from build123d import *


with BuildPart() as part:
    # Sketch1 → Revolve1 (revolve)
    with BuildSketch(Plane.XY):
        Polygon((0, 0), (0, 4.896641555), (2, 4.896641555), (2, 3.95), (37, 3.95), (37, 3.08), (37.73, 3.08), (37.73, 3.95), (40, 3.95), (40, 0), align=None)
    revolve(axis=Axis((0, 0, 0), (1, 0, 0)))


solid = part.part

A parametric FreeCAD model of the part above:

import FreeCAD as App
import Part
import Sketcher
from FreeCAD import Vector

doc = App.newDocument("Part")
body = doc.addObject("PartDesign::Body", "Body")

# Sketch on XY plane
sketch1 = body.newObject("Sketcher::SketchObject", "Sketch")
sketch1.AttachmentSupport = (doc.getObject("XY_Plane"), [""])
sketch1.MapMode = "FlatFace"
sketch1.addGeometry(Part.LineSegment(Vector(0, 4.9, 0), Vector(0, 0, 0)), False)
sketch1.addGeometry(Part.LineSegment(Vector(0, 0, 0), Vector(40, 0, 0)), False)
sketch1.addGeometry(Part.LineSegment(Vector(40, 0, 0), Vector(40, 4, 0)), False)
sketch1.addGeometry(Part.LineSegment(Vector(40, 4, 0), Vector(37.7, 4, 0)), False)
sketch1.addGeometry(Part.LineSegment(Vector(37.7, 4, 0), Vector(37.7, 3.1, 0)), False)
sketch1.addGeometry(Part.LineSegment(Vector(37.7, 3.1, 0), Vector(37, 3.1, 0)), False)
sketch1.addGeometry(Part.LineSegment(Vector(37, 3.1, 0), Vector(37, 4, 0)), False)
sketch1.addGeometry(Part.LineSegment(Vector(37, 4, 0), Vector(2, 4, 0)), False)
sketch1.addGeometry(Part.LineSegment(Vector(2, 4, 0), Vector(2, 4.9, 0)), False)
sketch1.addGeometry(Part.LineSegment(Vector(2, 4.9, 0), Vector(0, 4.9, 0)), False)
sketch1.addConstraint(Sketcher.Constraint("Coincident", 0, 2, 1, 1))
sketch1.addConstraint(Sketcher.Constraint("Coincident", 1, 2, 2, 1))
sketch1.addConstraint(Sketcher.Constraint("Coincident", 2, 2, 3, 1))
sketch1.addConstraint(Sketcher.Constraint("Coincident", 3, 2, 4, 1))
sketch1.addConstraint(Sketcher.Constraint("Coincident", 4, 2, 5, 1))
sketch1.addConstraint(Sketcher.Constraint("Coincident", 5, 2, 6, 1))
sketch1.addConstraint(Sketcher.Constraint("Coincident", 6, 2, 7, 1))
sketch1.addConstraint(Sketcher.Constraint("Coincident", 7, 2, 8, 1))
sketch1.addConstraint(Sketcher.Constraint("Coincident", 8, 2, 9, 1))
sketch1.addConstraint(Sketcher.Constraint("Coincident", 9, 2, 0, 1))
sketch1.addConstraint(Sketcher.Constraint("Vertical", 0))
sketch1.addConstraint(Sketcher.Constraint("Horizontal", 1))
sketch1.addConstraint(Sketcher.Constraint("Vertical", 2))
sketch1.addConstraint(Sketcher.Constraint("Horizontal", 3))
sketch1.addConstraint(Sketcher.Constraint("Vertical", 4))
sketch1.addConstraint(Sketcher.Constraint("Horizontal", 5))
sketch1.addConstraint(Sketcher.Constraint("Vertical", 6))
sketch1.addConstraint(Sketcher.Constraint("Horizontal", 7))
sketch1.addConstraint(Sketcher.Constraint("Vertical", 8))
sketch1.addConstraint(Sketcher.Constraint("Horizontal", 9))
sketch1.addConstraint(Sketcher.Constraint("Coincident", 0, 2, -1, 1))
sketch1.addConstraint(Sketcher.Constraint("Horizontal", 3, 2, 6, 2))
sketch1.addConstraint(Sketcher.Constraint("DistanceX", 1, 1, 1, 2, 40.0))
sketch1.addConstraint(Sketcher.Constraint("DistanceX", 7, 2, 7, 1, 35.0))
sketch1.addConstraint(Sketcher.Constraint("DistanceX", 9, 2, 9, 1, 2.0))
sketch1.addConstraint(Sketcher.Constraint("DistanceX", 3, 2, 3, 1, 2.27))
sketch1.addConstraint(Sketcher.Constraint("DistanceY", 2, 1, 2, 2, 3.95))
sketch1.addConstraint(Sketcher.Constraint("DistanceY", 4, 2, 4, 1, 0.87))
sketch1.addConstraint(Sketcher.Constraint("DistanceY", 0, 2, 0, 1, 4.896642))
revolution = body.newObject("PartDesign::Revolution", "Revolution")
revolution.Profile = sketch1
revolution.ReferenceAxis = (sketch1, ["H_Axis"])
revolution.Angle = 360

doc.recompute()
